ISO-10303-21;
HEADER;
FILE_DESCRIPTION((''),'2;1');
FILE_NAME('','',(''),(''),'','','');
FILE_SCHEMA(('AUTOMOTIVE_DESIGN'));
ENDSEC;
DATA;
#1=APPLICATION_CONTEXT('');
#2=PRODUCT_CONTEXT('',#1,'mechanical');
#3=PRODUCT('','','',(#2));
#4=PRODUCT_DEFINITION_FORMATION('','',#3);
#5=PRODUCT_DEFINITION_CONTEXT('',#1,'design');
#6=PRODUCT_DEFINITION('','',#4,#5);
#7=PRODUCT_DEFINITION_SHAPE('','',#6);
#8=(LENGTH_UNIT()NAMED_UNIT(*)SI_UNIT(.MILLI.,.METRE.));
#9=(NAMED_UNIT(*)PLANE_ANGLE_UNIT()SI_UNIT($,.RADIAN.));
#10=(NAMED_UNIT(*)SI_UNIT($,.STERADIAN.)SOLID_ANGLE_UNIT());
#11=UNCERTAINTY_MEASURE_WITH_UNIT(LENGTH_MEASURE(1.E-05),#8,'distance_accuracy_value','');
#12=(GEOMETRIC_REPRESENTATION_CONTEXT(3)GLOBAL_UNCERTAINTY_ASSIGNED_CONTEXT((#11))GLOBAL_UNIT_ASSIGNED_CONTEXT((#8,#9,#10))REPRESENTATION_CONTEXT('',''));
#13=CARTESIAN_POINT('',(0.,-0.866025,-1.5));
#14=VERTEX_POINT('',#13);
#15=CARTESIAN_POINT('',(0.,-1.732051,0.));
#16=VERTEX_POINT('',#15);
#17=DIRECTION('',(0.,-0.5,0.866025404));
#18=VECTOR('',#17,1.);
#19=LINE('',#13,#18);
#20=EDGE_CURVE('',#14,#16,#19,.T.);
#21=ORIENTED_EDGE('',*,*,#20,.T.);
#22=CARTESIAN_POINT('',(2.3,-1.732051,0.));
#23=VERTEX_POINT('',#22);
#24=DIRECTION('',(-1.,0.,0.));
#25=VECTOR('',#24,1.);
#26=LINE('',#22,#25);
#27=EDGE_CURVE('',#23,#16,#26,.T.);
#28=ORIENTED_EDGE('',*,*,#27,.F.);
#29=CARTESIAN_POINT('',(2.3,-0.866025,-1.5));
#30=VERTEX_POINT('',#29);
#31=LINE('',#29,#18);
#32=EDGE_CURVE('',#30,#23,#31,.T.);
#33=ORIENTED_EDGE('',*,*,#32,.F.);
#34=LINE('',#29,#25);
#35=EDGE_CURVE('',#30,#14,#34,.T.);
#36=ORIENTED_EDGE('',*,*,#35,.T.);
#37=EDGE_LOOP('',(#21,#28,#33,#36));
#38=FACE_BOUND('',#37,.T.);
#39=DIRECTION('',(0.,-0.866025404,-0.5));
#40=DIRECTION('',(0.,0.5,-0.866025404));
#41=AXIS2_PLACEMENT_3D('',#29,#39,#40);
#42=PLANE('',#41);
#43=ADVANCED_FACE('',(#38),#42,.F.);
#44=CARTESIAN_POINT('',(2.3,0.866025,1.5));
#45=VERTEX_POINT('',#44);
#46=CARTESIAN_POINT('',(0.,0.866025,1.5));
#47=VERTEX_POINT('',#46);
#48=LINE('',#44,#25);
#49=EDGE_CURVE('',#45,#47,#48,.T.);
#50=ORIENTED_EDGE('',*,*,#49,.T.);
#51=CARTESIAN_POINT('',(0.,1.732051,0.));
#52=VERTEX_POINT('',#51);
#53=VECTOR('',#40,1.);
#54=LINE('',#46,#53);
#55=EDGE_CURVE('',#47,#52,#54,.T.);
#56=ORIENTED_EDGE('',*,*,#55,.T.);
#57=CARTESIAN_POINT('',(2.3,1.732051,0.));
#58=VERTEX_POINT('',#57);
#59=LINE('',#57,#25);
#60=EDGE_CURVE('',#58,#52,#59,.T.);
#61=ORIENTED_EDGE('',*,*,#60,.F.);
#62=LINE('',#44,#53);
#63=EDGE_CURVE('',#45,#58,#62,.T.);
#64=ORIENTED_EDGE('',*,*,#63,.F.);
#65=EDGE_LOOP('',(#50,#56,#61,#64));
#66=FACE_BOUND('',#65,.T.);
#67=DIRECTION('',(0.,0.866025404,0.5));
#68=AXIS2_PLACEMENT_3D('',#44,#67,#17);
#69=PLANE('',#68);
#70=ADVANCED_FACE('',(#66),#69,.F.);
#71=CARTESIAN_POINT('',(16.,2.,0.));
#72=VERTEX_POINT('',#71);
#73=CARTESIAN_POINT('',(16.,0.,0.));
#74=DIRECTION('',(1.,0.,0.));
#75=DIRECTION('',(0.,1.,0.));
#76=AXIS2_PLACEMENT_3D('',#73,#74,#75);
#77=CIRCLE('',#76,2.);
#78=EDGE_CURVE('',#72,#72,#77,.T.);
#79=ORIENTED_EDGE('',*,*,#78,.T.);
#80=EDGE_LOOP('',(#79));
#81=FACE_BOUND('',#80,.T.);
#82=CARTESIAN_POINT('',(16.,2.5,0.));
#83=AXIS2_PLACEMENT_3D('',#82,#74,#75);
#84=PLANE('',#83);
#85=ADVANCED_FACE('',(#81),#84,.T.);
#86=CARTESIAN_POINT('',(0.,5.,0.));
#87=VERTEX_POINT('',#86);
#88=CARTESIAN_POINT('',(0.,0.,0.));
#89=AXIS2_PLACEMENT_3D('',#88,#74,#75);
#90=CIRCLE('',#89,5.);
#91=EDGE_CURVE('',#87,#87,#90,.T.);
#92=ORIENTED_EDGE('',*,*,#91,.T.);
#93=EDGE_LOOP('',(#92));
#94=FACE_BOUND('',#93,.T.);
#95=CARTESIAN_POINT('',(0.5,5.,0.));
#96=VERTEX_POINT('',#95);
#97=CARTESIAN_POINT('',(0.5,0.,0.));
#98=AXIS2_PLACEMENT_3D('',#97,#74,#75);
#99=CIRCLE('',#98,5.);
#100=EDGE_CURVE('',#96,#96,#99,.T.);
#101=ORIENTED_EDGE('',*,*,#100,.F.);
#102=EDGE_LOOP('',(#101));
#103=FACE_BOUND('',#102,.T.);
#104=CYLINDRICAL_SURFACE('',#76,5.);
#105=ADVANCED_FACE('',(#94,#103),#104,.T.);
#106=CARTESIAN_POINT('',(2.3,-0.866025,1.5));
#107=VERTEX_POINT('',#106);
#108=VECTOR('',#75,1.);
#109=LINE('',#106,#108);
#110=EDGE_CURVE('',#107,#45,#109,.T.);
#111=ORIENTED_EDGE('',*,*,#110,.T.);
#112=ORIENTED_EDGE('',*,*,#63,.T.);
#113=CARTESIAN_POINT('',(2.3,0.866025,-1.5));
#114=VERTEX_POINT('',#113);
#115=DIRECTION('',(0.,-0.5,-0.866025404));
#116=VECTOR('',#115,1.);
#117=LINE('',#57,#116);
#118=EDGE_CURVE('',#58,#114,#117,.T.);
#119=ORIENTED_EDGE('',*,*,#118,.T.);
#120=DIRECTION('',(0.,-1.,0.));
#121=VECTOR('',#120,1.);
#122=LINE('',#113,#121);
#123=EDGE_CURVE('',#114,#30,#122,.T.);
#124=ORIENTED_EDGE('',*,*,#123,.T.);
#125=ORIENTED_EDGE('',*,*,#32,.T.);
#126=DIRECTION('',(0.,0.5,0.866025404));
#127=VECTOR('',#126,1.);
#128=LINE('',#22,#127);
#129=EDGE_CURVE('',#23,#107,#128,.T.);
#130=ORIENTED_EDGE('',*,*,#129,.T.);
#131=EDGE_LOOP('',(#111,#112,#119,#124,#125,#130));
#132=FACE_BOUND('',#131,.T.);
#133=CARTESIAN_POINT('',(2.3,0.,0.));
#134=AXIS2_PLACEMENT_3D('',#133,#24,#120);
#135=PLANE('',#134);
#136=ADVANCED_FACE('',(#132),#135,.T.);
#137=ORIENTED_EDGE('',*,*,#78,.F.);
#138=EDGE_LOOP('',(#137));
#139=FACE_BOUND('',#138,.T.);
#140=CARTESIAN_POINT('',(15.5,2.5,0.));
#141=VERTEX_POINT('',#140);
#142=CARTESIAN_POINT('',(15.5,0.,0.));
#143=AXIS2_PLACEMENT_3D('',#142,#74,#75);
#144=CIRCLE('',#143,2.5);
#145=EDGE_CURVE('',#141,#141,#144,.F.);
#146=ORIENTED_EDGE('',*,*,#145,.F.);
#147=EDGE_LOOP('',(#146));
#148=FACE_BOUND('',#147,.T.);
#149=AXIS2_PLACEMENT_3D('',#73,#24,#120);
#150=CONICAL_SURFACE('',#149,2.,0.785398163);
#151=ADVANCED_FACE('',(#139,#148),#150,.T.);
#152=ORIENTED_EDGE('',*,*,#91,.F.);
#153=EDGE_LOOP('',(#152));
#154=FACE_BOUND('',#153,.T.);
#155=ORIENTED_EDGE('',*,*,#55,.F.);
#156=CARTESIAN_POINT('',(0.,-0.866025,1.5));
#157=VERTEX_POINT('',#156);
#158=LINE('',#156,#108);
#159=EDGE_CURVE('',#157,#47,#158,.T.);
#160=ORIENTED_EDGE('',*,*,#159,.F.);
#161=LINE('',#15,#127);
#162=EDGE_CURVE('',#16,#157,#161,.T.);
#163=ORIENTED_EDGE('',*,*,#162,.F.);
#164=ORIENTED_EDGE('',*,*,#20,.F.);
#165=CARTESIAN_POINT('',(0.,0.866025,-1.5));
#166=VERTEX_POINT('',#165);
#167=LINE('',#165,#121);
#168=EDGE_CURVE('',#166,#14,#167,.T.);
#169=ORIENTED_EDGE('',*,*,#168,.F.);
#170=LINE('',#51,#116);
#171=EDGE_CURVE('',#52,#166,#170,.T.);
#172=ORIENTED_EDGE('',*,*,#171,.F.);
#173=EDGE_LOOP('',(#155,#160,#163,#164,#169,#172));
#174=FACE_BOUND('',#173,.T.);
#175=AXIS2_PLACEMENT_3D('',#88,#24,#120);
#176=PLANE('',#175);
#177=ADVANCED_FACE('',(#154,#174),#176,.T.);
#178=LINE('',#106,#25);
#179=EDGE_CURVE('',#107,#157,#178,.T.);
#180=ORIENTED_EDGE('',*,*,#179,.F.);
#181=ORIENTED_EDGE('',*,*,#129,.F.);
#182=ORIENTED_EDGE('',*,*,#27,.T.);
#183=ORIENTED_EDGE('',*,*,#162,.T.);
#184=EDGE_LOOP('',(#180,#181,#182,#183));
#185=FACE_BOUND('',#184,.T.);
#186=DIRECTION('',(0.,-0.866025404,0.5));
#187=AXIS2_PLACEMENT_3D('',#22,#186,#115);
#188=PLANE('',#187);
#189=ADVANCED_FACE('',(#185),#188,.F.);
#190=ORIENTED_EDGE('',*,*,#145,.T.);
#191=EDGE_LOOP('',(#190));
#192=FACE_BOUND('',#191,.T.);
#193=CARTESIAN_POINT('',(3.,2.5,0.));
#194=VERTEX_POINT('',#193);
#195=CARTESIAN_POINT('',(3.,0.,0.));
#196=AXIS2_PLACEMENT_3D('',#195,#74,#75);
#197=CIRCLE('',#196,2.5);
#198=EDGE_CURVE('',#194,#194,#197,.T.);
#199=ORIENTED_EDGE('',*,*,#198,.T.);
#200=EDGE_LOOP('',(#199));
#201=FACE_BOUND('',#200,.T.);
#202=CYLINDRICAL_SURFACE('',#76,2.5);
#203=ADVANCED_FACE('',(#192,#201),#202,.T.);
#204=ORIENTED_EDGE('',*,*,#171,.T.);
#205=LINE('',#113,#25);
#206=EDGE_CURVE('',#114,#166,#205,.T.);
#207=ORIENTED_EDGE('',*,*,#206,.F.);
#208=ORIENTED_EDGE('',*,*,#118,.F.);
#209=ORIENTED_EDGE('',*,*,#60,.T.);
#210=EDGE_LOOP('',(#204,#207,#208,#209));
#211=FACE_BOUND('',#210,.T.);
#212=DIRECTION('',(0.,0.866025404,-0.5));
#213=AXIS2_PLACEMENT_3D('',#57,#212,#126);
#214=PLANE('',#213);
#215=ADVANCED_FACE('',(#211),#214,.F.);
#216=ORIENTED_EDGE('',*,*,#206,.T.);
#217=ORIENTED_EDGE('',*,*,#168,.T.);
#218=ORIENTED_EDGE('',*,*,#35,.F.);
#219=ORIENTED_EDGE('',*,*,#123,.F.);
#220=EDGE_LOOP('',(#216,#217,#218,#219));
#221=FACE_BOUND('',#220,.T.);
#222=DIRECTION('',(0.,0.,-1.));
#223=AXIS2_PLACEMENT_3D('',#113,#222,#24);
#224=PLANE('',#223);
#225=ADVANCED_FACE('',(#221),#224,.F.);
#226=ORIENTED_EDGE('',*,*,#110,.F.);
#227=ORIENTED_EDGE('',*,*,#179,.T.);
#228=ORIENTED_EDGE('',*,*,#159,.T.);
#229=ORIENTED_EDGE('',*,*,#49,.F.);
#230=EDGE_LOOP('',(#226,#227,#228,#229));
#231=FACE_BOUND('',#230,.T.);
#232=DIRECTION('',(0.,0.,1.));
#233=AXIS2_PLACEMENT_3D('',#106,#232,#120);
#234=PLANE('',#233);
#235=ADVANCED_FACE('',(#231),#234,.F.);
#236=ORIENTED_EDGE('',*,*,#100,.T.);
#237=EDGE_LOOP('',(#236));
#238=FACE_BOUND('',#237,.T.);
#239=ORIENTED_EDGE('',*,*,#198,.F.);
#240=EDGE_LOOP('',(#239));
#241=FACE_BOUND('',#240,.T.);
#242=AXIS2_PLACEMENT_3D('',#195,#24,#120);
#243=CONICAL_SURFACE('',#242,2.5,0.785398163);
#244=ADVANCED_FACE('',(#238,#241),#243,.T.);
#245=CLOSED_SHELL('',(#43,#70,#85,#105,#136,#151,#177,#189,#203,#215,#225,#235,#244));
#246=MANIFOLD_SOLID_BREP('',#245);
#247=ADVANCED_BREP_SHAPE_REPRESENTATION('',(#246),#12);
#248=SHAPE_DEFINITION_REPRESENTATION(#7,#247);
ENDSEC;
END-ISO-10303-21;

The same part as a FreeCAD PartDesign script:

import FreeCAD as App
import Part
import Sketcher

V = App.Vector
Q = App.Units.Quantity


def edges_at(feature, points):
    """Names of the edges that pass closest to the given points."""
    edges = feature.Shape.Edges
    near = lambda p: min(range(len(edges)), key=lambda i: edges[i].distToShape(Part.Vertex(*p))[0])
    return sorted({f"Edge{near(p) + 1}" for p in points})

doc = App.newDocument("Part")
params = doc.addObject("Spreadsheet::Sheet", "Params")
for row, (alias, value) in enumerate([
    ("sketch1_width", "16 mm"),
    ("sketch1_width2", "13 mm"),
    ("sketch1_height", "5 mm"),
    ("sketch1_width3", "0.5 mm"),
    ("revolution_angle", "360 deg"),
    ("chamfer_size", "0.5 mm"),
    ("pocket1_length", "2.3 mm"),
], start=1):
    params.set(f"A{row}", alias)
    params.set(f"B{row}", "=" + value)
    params.setAlias(f"B{row}", alias)

body = doc.addObject("PartDesign::Body", "Body")

# Sketch on XY plane
sketch1 = body.newObject("Sketcher::SketchObject", "Sketch")
sketch1.AttachmentSupport = (doc.getObject("XY_Plane"), [""])
sketch1.MapMode = "FlatFace"
sketch1.addGeometry([
    Part.LineSegment(V(0, 5, 0), V(0, 0, 0)),  # 0
    Part.LineSegment(V(0, 0, 0), V(16, 0, 0)),  # 1
    Part.LineSegment(V(16, 0, 0), V(16, 2.5, 0)),  # 2
    Part.LineSegment(V(16, 2.5, 0), V(3, 2.5, 0)),  # 3
    Part.LineSegment(V(3, 2.5, 0), V(0.5, 5, 0)),  # 4
    Part.LineSegment(V(0.5, 5, 0), V(0, 5, 0)),  # 5
], False)
sketch1.addConstraint([
    Sketcher.Constraint("Coincident", 0, 2, 1, 1),
    Sketcher.Constraint("Coincident", 1, 2, 2, 1),
    Sketcher.Constraint("Coincident", 2, 2, 3, 1),
    Sketcher.Constraint("Coincident", 3, 2, 4, 1),
    Sketcher.Constraint("Coincident", 4, 2, 5, 1),
    Sketcher.Constraint("Coincident", 5, 2, 0, 1),
    Sketcher.Constraint("Vertical", 0),
    Sketcher.Constraint("Horizontal", 1),
    Sketcher.Constraint("Vertical", 2),
    Sketcher.Constraint("Horizontal", 3),
    Sketcher.Constraint("Horizontal", 5),
    Sketcher.Constraint("Coincident", 0, 2, -1, 1),
    Sketcher.Constraint("DistanceX", 1, 1, 1, 2, 16.0),
    Sketcher.Constraint("DistanceX", 3, 2, 3, 1, 13.0),
    Sketcher.Constraint("DistanceY", 0, 2, 0, 1, 5.0),
    Sketcher.Constraint("Angle", 4, Q("135 deg")),
    Sketcher.Constraint("DistanceX", 5, 2, 5, 1, 0.5),
])
sketch1.setExpression("Constraints[12]", "Params.sketch1_width")
sketch1.setExpression("Constraints[13]", "Params.sketch1_width2")
sketch1.setExpression("Constraints[14]", "Params.sketch1_height")
sketch1.setExpression("Constraints[16]", "Params.sketch1_width3")
revolution = body.newObject("PartDesign::Revolution", "Revolution")
revolution.Profile = sketch1
revolution.ReferenceAxis = (sketch1, ["H_Axis"])
revolution.setExpression("Angle", "Params.revolution_angle")
doc.recompute()

chamfer = body.newObject("PartDesign::Chamfer", "Chamfer")
chamfer.Base = (revolution, edges_at(revolution, [(16, -2.5, 0)]))
chamfer.setExpression("Size", "Params.chamfer_size")

# Sketch on YZ plane
sketch2 = body.newObject("Sketcher::SketchObject", "Sketch001")
sketch2.AttachmentSupport = (doc.getObject("YZ_Plane"), [""])
sketch2.MapMode = "FlatFace"
sketch2.addGeometry([
    Part.LineSegment(V(1.7, 0, 0), V(0.9, -1.5, 0)),  # 0
    Part.LineSegment(V(0.9, -1.5, 0), V(-0.9, -1.5, 0)),  # 1
    Part.LineSegment(V(-0.9, -1.5, 0), V(-1.7, 0, 0)),  # 2
    Part.LineSegment(V(-1.7, 0, 0), V(-0.9, 1.5, 0)),  # 3
    Part.LineSegment(V(-0.9, 1.5, 0), V(0.9, 1.5, 0)),  # 4
    Part.LineSegment(V(0.9, 1.5, 0), V(1.7, 0, 0)),  # 5
], False)
sketch2.addConstraint([
    Sketcher.Constraint("Coincident", 0, 2, 1, 1),
    Sketcher.Constraint("Coincident", 1, 2, 2, 1),
    Sketcher.Constraint("Coincident", 2, 2, 3, 1),
    Sketcher.Constraint("Coincident", 3, 2, 4, 1),
    Sketcher.Constraint("Coincident", 4, 2, 5, 1),
    Sketcher.Constraint("Coincident", 5, 2, 0, 1),
    Sketcher.Constraint("Horizontal", 1),
    Sketcher.Constraint("Horizontal", 4),
    Sketcher.Constraint("Symmetric", 0, 2, 3, 2, -1, 1),
    Sketcher.Constraint("Symmetric", 2, 2, 5, 2, -1, 1),
    Sketcher.Constraint("PointOnObject", 2, 2, -1),
    Sketcher.Constraint("Parallel", 2, 5),
    Sketcher.Constraint("Vertical", 1, 2, 3, 2),
    Sketcher.Constraint("Angle", 0, Q("-120 deg")),
    Sketcher.Constraint("DistanceY", 1, 2, 3, 2, 3.0),
    Sketcher.Constraint("DistanceX", 1, 2, 1, 1, 1.732051),
])
pocket1 = body.newObject("PartDesign::Pocket", "Pocket")
pocket1.Profile = sketch2
pocket1.setExpression("Length", "Params.pocket1_length")
pocket1.Reversed = True

doc.recompute()
